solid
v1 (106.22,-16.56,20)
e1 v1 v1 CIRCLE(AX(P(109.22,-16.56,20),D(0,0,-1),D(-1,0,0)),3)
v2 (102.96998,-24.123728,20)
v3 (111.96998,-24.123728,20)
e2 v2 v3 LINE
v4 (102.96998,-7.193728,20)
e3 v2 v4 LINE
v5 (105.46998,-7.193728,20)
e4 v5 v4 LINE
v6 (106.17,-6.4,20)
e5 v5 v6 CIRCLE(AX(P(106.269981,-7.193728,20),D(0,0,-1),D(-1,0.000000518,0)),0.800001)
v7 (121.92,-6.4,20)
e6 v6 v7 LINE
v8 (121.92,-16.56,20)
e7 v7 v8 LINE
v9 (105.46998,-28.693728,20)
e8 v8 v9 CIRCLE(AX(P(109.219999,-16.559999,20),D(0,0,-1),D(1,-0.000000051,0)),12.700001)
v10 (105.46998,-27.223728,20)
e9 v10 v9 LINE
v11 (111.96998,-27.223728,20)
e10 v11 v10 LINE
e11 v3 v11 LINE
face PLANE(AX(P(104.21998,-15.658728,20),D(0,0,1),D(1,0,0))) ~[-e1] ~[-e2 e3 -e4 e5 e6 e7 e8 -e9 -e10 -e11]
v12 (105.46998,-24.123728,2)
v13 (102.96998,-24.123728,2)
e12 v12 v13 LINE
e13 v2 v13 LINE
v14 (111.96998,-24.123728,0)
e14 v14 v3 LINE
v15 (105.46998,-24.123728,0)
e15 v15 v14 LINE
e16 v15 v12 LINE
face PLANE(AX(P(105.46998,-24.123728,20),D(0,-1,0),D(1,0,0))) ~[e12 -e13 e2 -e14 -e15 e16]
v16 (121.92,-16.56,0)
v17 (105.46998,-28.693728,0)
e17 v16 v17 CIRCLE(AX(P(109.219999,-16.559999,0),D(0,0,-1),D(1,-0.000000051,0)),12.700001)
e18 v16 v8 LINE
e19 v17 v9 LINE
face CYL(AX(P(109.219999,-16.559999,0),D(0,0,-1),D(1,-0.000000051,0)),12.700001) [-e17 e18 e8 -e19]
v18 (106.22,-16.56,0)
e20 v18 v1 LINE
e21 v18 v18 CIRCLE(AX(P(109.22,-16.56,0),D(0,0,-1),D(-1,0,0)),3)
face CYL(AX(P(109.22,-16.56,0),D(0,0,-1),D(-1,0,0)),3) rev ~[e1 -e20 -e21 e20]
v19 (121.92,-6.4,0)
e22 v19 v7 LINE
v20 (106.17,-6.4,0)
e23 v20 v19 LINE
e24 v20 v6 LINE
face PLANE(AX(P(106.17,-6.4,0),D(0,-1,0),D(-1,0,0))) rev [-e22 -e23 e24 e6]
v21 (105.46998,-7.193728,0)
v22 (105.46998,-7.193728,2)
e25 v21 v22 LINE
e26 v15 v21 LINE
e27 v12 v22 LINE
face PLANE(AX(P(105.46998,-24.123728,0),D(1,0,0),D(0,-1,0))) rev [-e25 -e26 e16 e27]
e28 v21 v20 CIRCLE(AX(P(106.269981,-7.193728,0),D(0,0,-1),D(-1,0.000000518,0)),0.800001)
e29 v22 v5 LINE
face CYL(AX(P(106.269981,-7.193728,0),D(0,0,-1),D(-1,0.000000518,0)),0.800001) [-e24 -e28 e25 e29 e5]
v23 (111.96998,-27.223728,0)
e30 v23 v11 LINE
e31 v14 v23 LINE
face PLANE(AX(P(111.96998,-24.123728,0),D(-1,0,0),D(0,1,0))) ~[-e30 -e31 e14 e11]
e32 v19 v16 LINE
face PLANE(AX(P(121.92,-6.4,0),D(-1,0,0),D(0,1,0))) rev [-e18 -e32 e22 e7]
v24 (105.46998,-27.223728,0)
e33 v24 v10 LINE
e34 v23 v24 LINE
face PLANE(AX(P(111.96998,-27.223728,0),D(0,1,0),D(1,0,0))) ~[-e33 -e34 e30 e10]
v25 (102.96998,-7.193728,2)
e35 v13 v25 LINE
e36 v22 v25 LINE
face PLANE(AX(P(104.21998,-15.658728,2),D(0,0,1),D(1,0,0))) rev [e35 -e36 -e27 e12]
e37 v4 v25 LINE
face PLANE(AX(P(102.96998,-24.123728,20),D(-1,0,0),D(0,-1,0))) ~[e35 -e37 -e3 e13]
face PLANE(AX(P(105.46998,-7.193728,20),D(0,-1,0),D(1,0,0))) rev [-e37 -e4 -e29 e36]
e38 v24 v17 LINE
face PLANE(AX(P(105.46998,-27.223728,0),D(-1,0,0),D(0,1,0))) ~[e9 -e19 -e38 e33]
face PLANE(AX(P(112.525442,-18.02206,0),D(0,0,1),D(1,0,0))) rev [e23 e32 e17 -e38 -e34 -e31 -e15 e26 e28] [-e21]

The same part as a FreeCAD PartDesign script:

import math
import FreeCAD as App
import Part
import Sketcher
from FreeCAD import Vector

doc = App.newDocument("Part")
body = doc.addObject("PartDesign::Body", "Body")

# Sketch on XY plane
sketch1 = body.newObject("Sketcher::SketchObject", "Sketch")
sketch1.AttachmentSupport = (doc.getObject("XY_Plane"), [""])
sketch1.MapMode = "FlatFace"
sketch1.addGeometry([
    Part.ArcOfCircle(Part.Circle(Vector(-109.2, -35.6, 0), Vector(0, 0, 1), 12.7), math.radians(-180), math.radians(-73)),  # 0
    Part.LineSegment(Vector(-105.5, -47.7, 0), Vector(-105.5, -46.2, 0)),  # 1
    Part.LineSegment(Vector(-105.5, -46.2, 0), Vector(-112, -46.2, 0)),  # 2
    Part.LineSegment(Vector(-112, -46.2, 0), Vector(-112, -43.1, 0)),  # 3
    Part.LineSegment(Vector(-112, -43.1, 0), Vector(-105.5, -43.1, 0)),  # 4
    Part.LineSegment(Vector(-105.5, -43.1, 0), Vector(-105.5, -26.2, 0)),  # 5
    Part.ArcOfCircle(Part.Circle(Vector(-106.3, -26.2, 0), Vector(0, 0, 1), 0.8), math.radians(0), math.radians(83)),  # 6
    Part.LineSegment(Vector(-106.2, -25.4, 0), Vector(-121.9, -25.4, 0)),  # 7
    Part.LineSegment(Vector(-121.9, -25.4, 0), Vector(-121.9, -35.6, 0)),  # 8
    Part.Circle(Vector(-109.2, -35.6, 0), Vector(0, 0, 1), 3),  # 9
], False)
sketch1.addConstraint([
    Sketcher.Constraint("Coincident", 0, 2, 1, 1),
    Sketcher.Constraint("Coincident", 1, 2, 2, 1),
    Sketcher.Constraint("Coincident", 2, 2, 3, 1),
    Sketcher.Constraint("Coincident", 3, 2, 4, 1),
    Sketcher.Constraint("Coincident", 4, 2, 5, 1),
    Sketcher.Constraint("Tangent", 5, 2, 6, 1),
    Sketcher.Constraint("Coincident", 6, 2, 7, 1),
    Sketcher.Constraint("Coincident", 7, 2, 8, 1),
    Sketcher.Constraint("Tangent", 8, 2, 0, 1),
    Sketcher.Constraint("Vertical", 1),
    Sketcher.Constraint("Horizontal", 2),
    Sketcher.Constraint("Vertical", 3),
    Sketcher.Constraint("Horizontal", 4),
    Sketcher.Constraint("Vertical", 5),
    Sketcher.Constraint("Horizontal", 7),
    Sketcher.Constraint("Vertical", 8),
    Sketcher.Constraint("Coincident", 9, 3, 0, 3),
    Sketcher.Constraint("Vertical", 1, 2, 4, 2),
    Sketcher.Constraint("Diameter", 9, 6.0),
    Sketcher.Constraint("Radius", 0, 12.700001),
    Sketcher.Constraint("Radius", 6, 0.800001),
    Sketcher.Constraint("DistanceX", 2, 2, 2, 1, 6.5),
    Sketcher.Constraint("DistanceY", 3, 1, 3, 2, 3.1),
    Sketcher.Constraint("DistanceX", 7, 2, 7, 1, 15.75),
    Sketcher.Constraint("DistanceY", 1, 1, 1, 2, 1.47),
    Sketcher.Constraint("DistanceY", 5, 1, 5, 2, 16.93),
    Sketcher.Constraint("DistanceY", 8, 2, 8, 1, 10.16),
    Sketcher.Constraint("DistanceY", 6, 2, -1, 1, 25.4),
    Sketcher.Constraint("DistanceX", 0, 3, -1, 1, 109.219999),
])
pad1 = body.newObject("PartDesign::Pad", "Pad")
pad1.Profile = sketch1
pad1.Length = 20

# Sketch on XY plane
sketch2 = body.newObject("Sketcher::SketchObject", "Sketch001")
sketch2.AttachmentSupport = (doc.getObject("XY_Plane"), [""])
sketch2.MapMode = "FlatFace"
sketch2.AttachmentOffset = App.Placement(Vector(0, 0, 20), App.Rotation())
sketch2.addGeometry([
    Part.LineSegment(Vector(-105.5, -26.2, 0), Vector(-105.5, -43.1, 0)),
    Part.LineSegment(Vector(-105.5, -43.1, 0), Vector(-103, -43.1, 0)),
    Part.LineSegment(Vector(-103, -43.1, 0), Vector(-103, -26.2, 0)),
    Part.LineSegment(Vector(-103, -26.2, 0), Vector(-105.5, -26.2, 0)),
], False)
sketch2.addConstraint([
    Sketcher.Constraint("Coincident", 0, 2, 1, 1),
    Sketcher.Constraint("Coincident", 1, 2, 2, 1),
    Sketcher.Constraint("Coincident", 2, 2, 3, 1),
    Sketcher.Constraint("Coincident", 3, 2, 0, 1),
    Sketcher.Constraint("Vertical", 0),
    Sketcher.Constraint("Horizontal", 1),
    Sketcher.Constraint("Vertical", 2),
    Sketcher.Constraint("Horizontal", 3),
    Sketcher.Constraint("DistanceX", 1, 1, 1, 2, 2.5),
    Sketcher.Constraint("DistanceY", 0, 2, 0, 1, 16.93),
    Sketcher.Constraint("DistanceX", 0, 2, -1, 1, 105.46998),
    Sketcher.Constraint("DistanceY", 2, 2, -1, 1, 26.193728),
])
pad2 = body.newObject("PartDesign::Pad", "Pad001")
pad2.Profile = sketch2
pad2.Length = 18
pad2.Reversed = True
body2 = doc.addObject("PartDesign::Body", "Body001")
doc.recompute()

body.Placement = App.Placement(Vector(0, 19, 0), App.Rotation(Vector(0, 0, 1), 0))
boolean = body2.newObject("PartDesign::Boolean", "Boolean")
boolean.Type = "Fuse"
boolean.addObjects([body])
body3 = doc.addObject("PartDesign::Body", "Body002")
doc.recompute()

mirroring = doc.addObject("Part::Mirroring", "Mirroring")
mirroring.Source = body2
mirroring.Base = Vector(0, 0, 0)
mirroring.Normal = Vector(1, 0, 0)
body3.BaseFeature = mirroring
doc.recompute()
body2.Visibility = False
mirroring.Visibility = False

doc.recompute()
